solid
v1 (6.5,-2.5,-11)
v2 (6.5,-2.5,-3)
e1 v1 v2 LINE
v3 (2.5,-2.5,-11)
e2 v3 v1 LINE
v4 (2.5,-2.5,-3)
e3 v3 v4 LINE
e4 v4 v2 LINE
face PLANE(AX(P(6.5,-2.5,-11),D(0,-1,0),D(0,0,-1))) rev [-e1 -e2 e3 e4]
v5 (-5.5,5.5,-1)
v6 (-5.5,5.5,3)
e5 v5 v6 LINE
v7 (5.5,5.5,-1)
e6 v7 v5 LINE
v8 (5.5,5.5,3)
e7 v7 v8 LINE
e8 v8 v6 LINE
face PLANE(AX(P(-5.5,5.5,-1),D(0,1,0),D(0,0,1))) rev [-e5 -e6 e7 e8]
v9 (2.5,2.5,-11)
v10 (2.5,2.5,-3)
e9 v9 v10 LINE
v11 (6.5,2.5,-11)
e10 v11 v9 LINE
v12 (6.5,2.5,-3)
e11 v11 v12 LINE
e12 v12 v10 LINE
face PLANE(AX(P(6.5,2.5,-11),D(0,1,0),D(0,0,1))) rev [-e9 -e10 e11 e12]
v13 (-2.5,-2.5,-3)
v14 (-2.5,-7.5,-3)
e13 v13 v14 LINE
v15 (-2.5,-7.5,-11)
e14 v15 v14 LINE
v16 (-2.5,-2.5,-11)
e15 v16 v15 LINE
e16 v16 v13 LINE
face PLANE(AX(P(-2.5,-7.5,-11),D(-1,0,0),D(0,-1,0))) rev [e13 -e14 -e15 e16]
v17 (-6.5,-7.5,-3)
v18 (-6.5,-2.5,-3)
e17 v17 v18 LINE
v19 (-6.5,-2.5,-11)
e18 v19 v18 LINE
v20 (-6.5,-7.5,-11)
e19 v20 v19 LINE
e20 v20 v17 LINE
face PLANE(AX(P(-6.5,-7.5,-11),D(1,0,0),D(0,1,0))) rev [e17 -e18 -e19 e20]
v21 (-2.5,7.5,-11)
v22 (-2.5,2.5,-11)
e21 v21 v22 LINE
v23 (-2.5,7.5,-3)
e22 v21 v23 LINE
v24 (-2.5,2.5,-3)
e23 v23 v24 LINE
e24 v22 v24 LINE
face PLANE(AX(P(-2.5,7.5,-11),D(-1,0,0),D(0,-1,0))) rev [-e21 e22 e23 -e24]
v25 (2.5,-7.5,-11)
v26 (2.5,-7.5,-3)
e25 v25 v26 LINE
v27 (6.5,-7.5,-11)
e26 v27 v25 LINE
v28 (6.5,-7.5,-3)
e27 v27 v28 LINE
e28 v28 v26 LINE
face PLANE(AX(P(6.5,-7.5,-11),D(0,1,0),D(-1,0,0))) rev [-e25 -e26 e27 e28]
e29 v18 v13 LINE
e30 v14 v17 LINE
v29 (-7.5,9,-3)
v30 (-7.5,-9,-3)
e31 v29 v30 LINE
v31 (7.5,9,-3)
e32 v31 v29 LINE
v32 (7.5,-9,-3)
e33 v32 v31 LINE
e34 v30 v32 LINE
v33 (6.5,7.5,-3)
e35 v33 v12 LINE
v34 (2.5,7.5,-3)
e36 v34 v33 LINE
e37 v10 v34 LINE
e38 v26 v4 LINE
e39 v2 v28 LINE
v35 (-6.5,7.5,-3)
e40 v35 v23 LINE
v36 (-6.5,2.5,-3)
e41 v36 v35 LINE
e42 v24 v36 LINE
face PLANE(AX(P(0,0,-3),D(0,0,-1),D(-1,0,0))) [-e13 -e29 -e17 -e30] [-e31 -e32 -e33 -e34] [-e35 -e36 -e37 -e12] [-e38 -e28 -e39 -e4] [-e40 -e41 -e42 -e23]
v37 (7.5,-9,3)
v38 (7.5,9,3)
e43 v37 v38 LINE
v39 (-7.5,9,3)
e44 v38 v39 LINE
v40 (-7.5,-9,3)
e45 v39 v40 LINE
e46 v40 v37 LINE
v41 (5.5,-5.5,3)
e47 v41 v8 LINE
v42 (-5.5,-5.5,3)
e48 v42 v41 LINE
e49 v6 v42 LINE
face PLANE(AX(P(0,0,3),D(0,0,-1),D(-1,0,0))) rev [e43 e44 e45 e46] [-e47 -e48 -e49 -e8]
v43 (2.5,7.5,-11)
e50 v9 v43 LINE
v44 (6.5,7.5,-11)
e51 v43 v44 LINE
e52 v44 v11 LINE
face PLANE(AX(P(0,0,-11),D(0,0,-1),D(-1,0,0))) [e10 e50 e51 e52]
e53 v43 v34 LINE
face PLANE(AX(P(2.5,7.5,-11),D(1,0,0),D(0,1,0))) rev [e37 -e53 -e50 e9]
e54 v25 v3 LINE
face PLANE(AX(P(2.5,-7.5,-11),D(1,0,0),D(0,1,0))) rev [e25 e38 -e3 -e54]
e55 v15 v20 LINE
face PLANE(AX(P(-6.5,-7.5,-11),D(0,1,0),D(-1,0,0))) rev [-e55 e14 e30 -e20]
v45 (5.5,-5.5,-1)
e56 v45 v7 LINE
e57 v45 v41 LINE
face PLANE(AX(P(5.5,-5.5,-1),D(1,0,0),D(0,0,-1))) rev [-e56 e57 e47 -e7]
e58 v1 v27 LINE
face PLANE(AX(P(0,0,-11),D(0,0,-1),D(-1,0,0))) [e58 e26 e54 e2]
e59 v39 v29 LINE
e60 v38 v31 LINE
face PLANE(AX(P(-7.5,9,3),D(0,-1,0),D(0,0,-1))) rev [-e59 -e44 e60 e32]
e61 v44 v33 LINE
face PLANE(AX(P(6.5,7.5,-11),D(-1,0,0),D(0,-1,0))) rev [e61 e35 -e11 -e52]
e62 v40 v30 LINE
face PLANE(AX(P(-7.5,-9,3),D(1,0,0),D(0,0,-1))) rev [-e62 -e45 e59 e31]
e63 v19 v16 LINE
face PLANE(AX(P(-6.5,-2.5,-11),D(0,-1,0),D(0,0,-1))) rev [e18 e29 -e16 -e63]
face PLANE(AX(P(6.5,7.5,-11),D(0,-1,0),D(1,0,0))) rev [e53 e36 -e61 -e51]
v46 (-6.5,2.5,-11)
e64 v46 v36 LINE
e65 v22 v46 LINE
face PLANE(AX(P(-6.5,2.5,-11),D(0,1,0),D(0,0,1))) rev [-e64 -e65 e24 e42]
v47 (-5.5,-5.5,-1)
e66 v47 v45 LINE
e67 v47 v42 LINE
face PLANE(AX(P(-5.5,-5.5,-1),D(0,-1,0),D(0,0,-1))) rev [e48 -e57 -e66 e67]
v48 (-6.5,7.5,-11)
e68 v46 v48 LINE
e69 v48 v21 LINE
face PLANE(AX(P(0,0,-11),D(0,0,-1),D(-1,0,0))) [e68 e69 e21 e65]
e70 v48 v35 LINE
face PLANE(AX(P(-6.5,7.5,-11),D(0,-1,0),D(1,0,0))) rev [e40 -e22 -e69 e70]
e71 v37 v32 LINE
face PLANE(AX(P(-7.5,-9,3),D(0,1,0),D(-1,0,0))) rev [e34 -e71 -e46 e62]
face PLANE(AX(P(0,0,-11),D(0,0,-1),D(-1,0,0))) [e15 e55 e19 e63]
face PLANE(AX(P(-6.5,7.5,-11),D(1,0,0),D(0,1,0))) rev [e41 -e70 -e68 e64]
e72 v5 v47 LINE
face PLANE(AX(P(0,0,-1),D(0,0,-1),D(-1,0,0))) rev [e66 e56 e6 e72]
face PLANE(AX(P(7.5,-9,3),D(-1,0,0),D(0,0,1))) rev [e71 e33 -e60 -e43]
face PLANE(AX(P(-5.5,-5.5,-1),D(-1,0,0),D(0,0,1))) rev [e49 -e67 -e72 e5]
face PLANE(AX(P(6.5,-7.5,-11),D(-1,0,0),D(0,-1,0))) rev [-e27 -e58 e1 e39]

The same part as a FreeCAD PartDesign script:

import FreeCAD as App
import Part
import Sketcher

V = App.Vector


def add_polygon(sketch, points):
    """Adds a closed chain of lines whose ends are joined by coincident constraints."""
    first, n = sketch.GeometryCount, len(points)
    for a, b in zip(points, points[1:] + points[:1]):
        sketch.addGeometry(Part.LineSegment(App.Vector(*a, 0), App.Vector(*b, 0)), False)
    for i in range(n):
        sketch.addConstraint(Sketcher.Constraint("Coincident", first + i, 2, first + (i + 1) % n, 1))

doc = App.newDocument("Part")
body = doc.addObject("PartDesign::Body", "Body")

sketch1 = body.newObject("Sketcher::SketchObject", "Sketch")
sketch1.AttachmentSupport = (doc.getObject("XY_Plane"), [""])
sketch1.MapMode = "FlatFace"
add_polygon(sketch1, [(-8, 9), (-8, -9), (8, -9), (8, 9)])
sketch1.addConstraint(Sketcher.Constraint("Vertical", 0))
sketch1.addConstraint(Sketcher.Constraint("Horizontal", 1))
sketch1.addConstraint(Sketcher.Constraint("Vertical", 2))
sketch1.addConstraint(Sketcher.Constraint("Horizontal", 3))
sketch1.addConstraint(Sketcher.Constraint("Symmetric", 0, 2, 2, 2, -1, 1))
sketch1.addConstraint(Sketcher.Constraint("DistanceX", 1, 1, 1, 2, 15.0))
sketch1.addConstraint(Sketcher.Constraint("DistanceY", 0, 2, 0, 1, 18.0))
pad1 = body.newObject("PartDesign::Pad", "Pad")
pad1.Profile = sketch1
pad1.Length = 6
pad1.Midplane = True

sketch2 = body.newObject("Sketcher::SketchObject", "Sketch001")
sketch2.AttachmentSupport = (doc.getObject("XY_Plane"), [""])
sketch2.MapMode = "FlatFace"
sketch2.AttachmentOffset = App.Placement(V(0, 0, 3), App.Rotation())
add_polygon(sketch2, [(-6, 6), (-6, -6), (6, -6), (6, 6)])
sketch2.addConstraint(Sketcher.Constraint("Vertical", 0))
sketch2.addConstraint(Sketcher.Constraint("Horizontal", 1))
sketch2.addConstraint(Sketcher.Constraint("Vertical", 2))
sketch2.addConstraint(Sketcher.Constraint("Horizontal", 3))
sketch2.addConstraint(Sketcher.Constraint("Symmetric", 0, 2, 2, 2, -1, 1))
sketch2.addConstraint(Sketcher.Constraint("Equal", 3, 0))
sketch2.addConstraint(Sketcher.Constraint("DistanceX", 1, 1, 1, 2, 11.0))
pocket1 = body.newObject("PartDesign::Pocket", "Pocket")
pocket1.Profile = sketch2
pocket1.Length = 4

sketch3 = body.newObject("Sketcher::SketchObject", "Sketch002")
sketch3.AttachmentSupport = (doc.getObject("XY_Plane"), [""])
sketch3.MapMode = "FlatFace"
sketch3.AttachmentOffset = App.Placement(V(0, 0, -3), App.Rotation())
add_polygon(sketch3, [(6.5, 7.5), (6.5, 2.5), (2.5, 2.5), (2.5, 7.5)])
add_polygon(sketch3, [(-2.5, 7.5), (-2.5, 2.5), (-6.5, 2.5), (-6.5, 7.5)])
add_polygon(sketch3, [(-2.5, -2.5), (-2.5, -7.5), (-6.5, -7.5), (-6.5, -2.5)])
add_polygon(sketch3, [(6.5, -2.5), (6.5, -7.5), (2.5, -7.5), (2.5, -2.5)])
sketch3.addConstraint(Sketcher.Constraint("Vertical", 0))
sketch3.addConstraint(Sketcher.Constraint("Horizontal", 1))
sketch3.addConstraint(Sketcher.Constraint("Vertical", 2))
sketch3.addConstraint(Sketcher.Constraint("Horizontal", 3))
sketch3.addConstraint(Sketcher.Constraint("Vertical", 4))
sketch3.addConstraint(Sketcher.Constraint("Horizontal", 5))
sketch3.addConstraint(Sketcher.Constraint("Vertical", 6))
sketch3.addConstraint(Sketcher.Constraint("Horizontal", 7))
sketch3.addConstraint(Sketcher.Constraint("Vertical", 8))
sketch3.addConstraint(Sketcher.Constraint("Horizontal", 9))
sketch3.addConstraint(Sketcher.Constraint("Vertical", 10))
sketch3.addConstraint(Sketcher.Constraint("Horizontal", 11))
sketch3.addConstraint(Sketcher.Constraint("Vertical", 12))
sketch3.addConstraint(Sketcher.Constraint("Horizontal", 13))
sketch3.addConstraint(Sketcher.Constraint("Vertical", 14))
sketch3.addConstraint(Sketcher.Constraint("Horizontal", 15))
sketch3.addConstraint(Sketcher.Constraint("Symmetric", 2, 2, 8, 2, -1, 1))
sketch3.addConstraint(Sketcher.Constraint("Symmetric", 0, 2, 10, 2, -1, 1))
sketch3.addConstraint(Sketcher.Constraint("Symmetric", 6, 2, 12, 2, -1, 1))
sketch3.addConstraint(Sketcher.Constraint("Symmetric", 4, 2, 14, 2, -1, 1))
sketch3.addConstraint(Sketcher.Constraint("Symmetric", 1, 2, 4, 2, -2))
sketch3.addConstraint(Sketcher.Constraint("Symmetric", 3, 2, 6, 2, -2))
sketch3.addConstraint(Sketcher.Constraint("DistanceX", 1, 2, 1, 1, 4.0))
sketch3.addConstraint(Sketcher.Constraint("DistanceY", 0, 2, 0, 1, 5.0))
sketch3.addConstraint(Sketcher.Constraint("DistanceX", 4, 2, 1, 2, 5.0))
sketch3.addConstraint(Sketcher.Constraint("DistanceY", 8, 2, 4, 2, 10.0))
pad2 = body.newObject("PartDesign::Pad", "Pad001")
pad2.Profile = sketch3
pad2.Length = 8
pad2.Reversed = True

doc.recompute()
